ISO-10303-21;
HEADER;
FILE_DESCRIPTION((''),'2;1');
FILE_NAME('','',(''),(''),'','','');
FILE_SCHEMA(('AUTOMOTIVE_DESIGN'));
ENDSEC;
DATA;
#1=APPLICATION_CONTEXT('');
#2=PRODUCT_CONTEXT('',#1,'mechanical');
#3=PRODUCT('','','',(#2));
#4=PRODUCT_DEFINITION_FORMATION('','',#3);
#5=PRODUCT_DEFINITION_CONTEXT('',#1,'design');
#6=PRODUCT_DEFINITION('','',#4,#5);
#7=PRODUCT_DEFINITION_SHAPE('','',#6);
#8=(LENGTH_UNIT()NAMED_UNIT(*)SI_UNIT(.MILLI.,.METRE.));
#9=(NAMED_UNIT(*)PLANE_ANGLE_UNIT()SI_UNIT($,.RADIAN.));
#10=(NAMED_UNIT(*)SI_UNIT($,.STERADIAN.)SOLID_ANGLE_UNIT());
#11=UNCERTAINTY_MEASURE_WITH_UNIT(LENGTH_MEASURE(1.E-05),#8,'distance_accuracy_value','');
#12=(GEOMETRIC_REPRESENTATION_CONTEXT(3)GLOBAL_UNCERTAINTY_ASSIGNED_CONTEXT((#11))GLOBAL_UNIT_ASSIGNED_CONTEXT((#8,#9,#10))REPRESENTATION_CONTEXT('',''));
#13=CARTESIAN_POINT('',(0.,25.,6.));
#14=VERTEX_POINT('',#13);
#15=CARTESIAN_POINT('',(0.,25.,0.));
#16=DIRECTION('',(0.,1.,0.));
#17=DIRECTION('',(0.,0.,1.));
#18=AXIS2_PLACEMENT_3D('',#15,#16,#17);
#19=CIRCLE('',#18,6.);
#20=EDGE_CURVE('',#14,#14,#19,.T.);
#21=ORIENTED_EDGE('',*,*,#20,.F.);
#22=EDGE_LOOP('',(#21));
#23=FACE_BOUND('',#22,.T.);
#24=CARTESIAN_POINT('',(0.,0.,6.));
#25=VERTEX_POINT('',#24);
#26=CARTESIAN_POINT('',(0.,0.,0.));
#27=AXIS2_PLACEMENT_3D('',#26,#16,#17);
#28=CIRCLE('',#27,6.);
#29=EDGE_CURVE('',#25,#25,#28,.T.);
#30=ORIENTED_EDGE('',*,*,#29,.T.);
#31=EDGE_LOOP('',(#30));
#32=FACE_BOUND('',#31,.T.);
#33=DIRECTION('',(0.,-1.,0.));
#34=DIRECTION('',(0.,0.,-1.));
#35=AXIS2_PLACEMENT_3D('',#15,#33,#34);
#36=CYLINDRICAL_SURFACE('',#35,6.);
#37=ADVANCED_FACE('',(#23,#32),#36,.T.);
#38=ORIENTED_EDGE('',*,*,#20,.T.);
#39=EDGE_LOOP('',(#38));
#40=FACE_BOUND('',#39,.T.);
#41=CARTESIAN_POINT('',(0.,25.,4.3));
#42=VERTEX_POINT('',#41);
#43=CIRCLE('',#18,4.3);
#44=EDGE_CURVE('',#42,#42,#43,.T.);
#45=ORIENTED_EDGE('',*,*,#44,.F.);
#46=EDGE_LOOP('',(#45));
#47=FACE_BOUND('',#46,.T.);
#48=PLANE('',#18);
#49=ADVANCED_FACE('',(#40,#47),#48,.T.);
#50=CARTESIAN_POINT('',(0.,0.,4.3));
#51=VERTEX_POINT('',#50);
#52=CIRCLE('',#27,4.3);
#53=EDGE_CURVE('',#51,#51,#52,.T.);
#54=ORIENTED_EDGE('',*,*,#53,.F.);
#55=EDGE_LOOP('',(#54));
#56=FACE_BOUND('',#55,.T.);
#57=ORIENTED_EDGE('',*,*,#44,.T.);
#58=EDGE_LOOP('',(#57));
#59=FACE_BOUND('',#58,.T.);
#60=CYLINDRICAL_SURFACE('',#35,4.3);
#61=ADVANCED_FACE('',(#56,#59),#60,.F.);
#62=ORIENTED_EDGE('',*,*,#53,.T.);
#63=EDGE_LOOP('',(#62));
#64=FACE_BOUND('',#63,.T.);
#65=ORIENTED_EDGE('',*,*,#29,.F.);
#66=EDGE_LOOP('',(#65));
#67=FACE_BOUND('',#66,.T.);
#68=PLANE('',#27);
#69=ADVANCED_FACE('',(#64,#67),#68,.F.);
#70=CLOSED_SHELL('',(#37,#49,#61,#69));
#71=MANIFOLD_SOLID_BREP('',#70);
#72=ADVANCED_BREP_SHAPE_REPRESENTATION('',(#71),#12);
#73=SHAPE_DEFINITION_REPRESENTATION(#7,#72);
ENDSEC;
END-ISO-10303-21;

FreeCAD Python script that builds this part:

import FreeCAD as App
import Part
import Sketcher

V = App.Vector
Q = App.Units.Quantity

doc = App.newDocument("Part")
body = doc.addObject("PartDesign::Body", "Body")

# Sketch on XZ plane
sketch1 = body.newObject("Sketcher::SketchObject", "Sketch")
sketch1.AttachmentSupport = (doc.getObject("XZ_Plane"), [""])
sketch1.MapMode = "FlatFace"
sketch1.addGeometry(Part.Circle(V(0, 0, 0), V(0, 0, 1), 6), False)
sketch1.addGeometry(Part.Circle(V(0, 0, 0), V(0, 0, 1), 4.3), False)
sketch1.addConstraint(Sketcher.Constraint("Coincident", 0, 3, -1, 1))
sketch1.addConstraint(Sketcher.Constraint("Coincident", 1, 3, -1, 1))
sketch1.addConstraint(Sketcher.Constraint("Diameter", 0, Q("12 mm")))
sketch1.addConstraint(Sketcher.Constraint("Diameter", 1, Q("8.6 mm")))
pad1 = body.newObject("PartDesign::Pad", "Pad")
pad1.Profile = sketch1
pad1.Length = 25
pad1.Reversed = True

doc.recompute()
